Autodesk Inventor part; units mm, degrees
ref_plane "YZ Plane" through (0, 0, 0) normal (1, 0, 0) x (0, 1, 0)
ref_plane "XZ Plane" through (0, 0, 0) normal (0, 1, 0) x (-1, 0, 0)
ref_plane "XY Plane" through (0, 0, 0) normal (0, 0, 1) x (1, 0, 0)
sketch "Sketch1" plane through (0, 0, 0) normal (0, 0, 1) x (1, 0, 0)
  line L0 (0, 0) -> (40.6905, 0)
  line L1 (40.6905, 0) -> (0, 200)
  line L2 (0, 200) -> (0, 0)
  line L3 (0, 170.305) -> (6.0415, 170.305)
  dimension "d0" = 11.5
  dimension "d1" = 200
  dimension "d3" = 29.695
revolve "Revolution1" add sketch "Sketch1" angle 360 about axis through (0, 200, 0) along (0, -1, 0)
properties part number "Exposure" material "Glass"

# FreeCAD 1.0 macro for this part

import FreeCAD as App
import Part
import Sketcher

V = App.Vector
Q = App.Units.Quantity

doc = App.newDocument("Part")
body = doc.addObject("PartDesign::Body", "Body")

sketch1 = body.newObject("Sketcher::SketchObject", "Sketch")
sketch1.AttachmentSupport = (doc.getObject("XY_Plane"), [""])
sketch1.MapMode = "FlatFace"
sketch1.addGeometry([
    Part.LineSegment(V(0, 0, 0), V(40.6905, 0, 0)),
    Part.LineSegment(V(40.6905, 0, 0), V(0, 200, 0)),
    Part.LineSegment(V(0, 200, 0), V(0, 0, 0)),
], False)
sketch1.addConstraint([
    Sketcher.Constraint("Coincident", 0, 2, 1, 1),
    Sketcher.Constraint("Coincident", 1, 2, 2, 1),
    Sketcher.Constraint("Coincident", 2, 2, 0, 1),
    Sketcher.Constraint("Horizontal", 0),
    Sketcher.Constraint("Vertical", 2),
    Sketcher.Constraint("Coincident", 2, 2, -1, 1),
    Sketcher.Constraint("DistanceY", 2, 2, 2, 1, Q("200 mm")),
    Sketcher.Constraint("Angle", 1, Q("101.5 deg")),
])
revolution = body.newObject("PartDesign::Revolution", "Revolution")
revolution.Profile = sketch1
revolution.ReferenceAxis = (sketch1, ["V_Axis"])
revolution.Angle = 360

doc.recompute()
